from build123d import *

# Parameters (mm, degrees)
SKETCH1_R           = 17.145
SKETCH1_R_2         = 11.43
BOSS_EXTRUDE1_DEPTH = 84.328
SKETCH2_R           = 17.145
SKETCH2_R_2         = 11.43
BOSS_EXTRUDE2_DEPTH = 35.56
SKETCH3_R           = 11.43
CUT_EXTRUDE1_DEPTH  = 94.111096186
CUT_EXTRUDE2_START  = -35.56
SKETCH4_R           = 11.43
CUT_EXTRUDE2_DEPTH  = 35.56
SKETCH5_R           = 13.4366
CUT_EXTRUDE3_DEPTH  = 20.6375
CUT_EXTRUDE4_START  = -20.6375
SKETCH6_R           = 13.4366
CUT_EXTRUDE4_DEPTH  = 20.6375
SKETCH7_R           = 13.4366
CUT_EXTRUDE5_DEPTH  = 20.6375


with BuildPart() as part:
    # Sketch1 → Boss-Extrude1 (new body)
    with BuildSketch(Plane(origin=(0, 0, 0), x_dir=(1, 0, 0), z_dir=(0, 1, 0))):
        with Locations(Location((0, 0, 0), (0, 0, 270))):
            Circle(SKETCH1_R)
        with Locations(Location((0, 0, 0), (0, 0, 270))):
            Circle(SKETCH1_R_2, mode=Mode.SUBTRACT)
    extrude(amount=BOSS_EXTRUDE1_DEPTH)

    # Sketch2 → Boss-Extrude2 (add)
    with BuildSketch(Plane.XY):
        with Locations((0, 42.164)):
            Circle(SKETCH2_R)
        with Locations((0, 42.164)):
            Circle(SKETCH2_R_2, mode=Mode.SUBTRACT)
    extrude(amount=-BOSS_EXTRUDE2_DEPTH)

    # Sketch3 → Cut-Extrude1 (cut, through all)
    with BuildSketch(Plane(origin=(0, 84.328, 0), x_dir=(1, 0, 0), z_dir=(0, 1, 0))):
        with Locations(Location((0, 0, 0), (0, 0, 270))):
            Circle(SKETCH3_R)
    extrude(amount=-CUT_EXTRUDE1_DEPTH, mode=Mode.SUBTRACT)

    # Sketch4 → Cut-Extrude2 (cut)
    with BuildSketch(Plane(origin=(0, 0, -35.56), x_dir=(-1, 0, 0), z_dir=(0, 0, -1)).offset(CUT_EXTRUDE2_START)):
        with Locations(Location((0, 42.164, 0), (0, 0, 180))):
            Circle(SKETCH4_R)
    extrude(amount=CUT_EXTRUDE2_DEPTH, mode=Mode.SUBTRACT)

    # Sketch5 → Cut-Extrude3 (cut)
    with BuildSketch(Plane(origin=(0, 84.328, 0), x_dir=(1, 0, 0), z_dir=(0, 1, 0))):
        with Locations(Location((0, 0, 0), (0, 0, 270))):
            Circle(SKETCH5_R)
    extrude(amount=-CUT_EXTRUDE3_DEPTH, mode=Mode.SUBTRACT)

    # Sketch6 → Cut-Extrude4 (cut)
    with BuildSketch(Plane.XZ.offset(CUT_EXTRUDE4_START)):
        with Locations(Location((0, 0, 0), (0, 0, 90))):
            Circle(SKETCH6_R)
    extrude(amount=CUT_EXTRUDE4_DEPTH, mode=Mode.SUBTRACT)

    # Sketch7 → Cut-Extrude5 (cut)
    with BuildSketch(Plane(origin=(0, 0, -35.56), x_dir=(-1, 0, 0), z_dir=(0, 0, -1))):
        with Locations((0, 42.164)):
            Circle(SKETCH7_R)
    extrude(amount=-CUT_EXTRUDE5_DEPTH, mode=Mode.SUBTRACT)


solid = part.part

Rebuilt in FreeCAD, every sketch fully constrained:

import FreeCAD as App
import Part
import Sketcher
from FreeCAD import Vector
Q = App.Units.Quantity

doc = App.newDocument("Part")
params = doc.addObject("Spreadsheet::Sheet", "Params")
for row, (alias, value) in enumerate([
    ("sketch1_diameter", "0.9 in"),
    ("sketch1_diameter2", "1.35 in"),
    ("pad1_length", "3.32 in"),
    ("sketch2_diameter", "0.9 in"),
    ("sketch2_diameter2", "1.35 in"),
    ("pad2_length", "1.4 in"),
    ("sketch3_diameter", "0.9 in"),
    ("sketch4_diameter", "0.9 in"),
    ("pocket2_length", "1.4 in"),
    ("sketch5_diameter", "1.058 in"),
    ("pocket3_length", "0.8125 in"),
    ("sketch6_diameter", "1.058 in"),
    ("pocket4_length", "0.8125 in"),
    ("sketch7_diameter", "1.058 in"),
    ("pocket5_length", "0.8125 in"),
], start=1):
    params.set(f"A{row}", alias)
    params.set(f"B{row}", "=" + value)
    params.setAlias(f"B{row}", alias)

body = doc.addObject("PartDesign::Body", "Body")

sketch1 = body.newObject("Sketcher::SketchObject", "Sketch")
sketch1.AttachmentSupport = (doc.getObject("XZ_Plane"), [""])
sketch1.MapMode = "FlatFace"
sketch1.addGeometry([
    Part.Circle(Vector(0, 0, 0), Vector(0, 0, 1), 17),
    Part.Circle(Vector(0, 0, 0), Vector(0, 0, 1), 11),
], False)
sketch1.addConstraint([
    Sketcher.Constraint("Coincident", 0, 3, -1, 1),
    Sketcher.Constraint("Coincident", 1, 3, -1, 1),
    Sketcher.Constraint("Diameter", 1, Q("0.9 in")),
    Sketcher.Constraint("Diameter", 0, Q("1.35 in")),
])
sketch1.setExpression("Constraints[2]", "Params.sketch1_diameter")
sketch1.setExpression("Constraints[3]", "Params.sketch1_diameter2")
pad1 = body.newObject("PartDesign::Pad", "Pad")
pad1.Profile = sketch1
pad1.setExpression("Length", "Params.pad1_length")
pad1.Reversed = True

sketch2 = body.newObject("Sketcher::SketchObject", "Sketch001")
sketch2.AttachmentSupport = (doc.getObject("XY_Plane"), [""])
sketch2.MapMode = "FlatFace"
sketch2.addGeometry([
    Part.Circle(Vector(0, 42, 0), Vector(0, 0, 1), 17),
    Part.Circle(Vector(0, 42, 0), Vector(0, 0, 1), 11),
], False)
sketch2.addConstraint([
    Sketcher.Constraint("Coincident", 1, 3, 0, 3),
    Sketcher.Constraint("PointOnObject", 0, 3, -2),
    Sketcher.Constraint("Diameter", 1, Q("0.9 in")),
    Sketcher.Constraint("Diameter", 0, Q("1.35 in")),
    Sketcher.Constraint("DistanceY", -1, 1, 0, 3, Q("1.66 in")),
])
sketch2.setExpression("Constraints[2]", "Params.sketch2_diameter")
sketch2.setExpression("Constraints[3]", "Params.sketch2_diameter2")
pad2 = body.newObject("PartDesign::Pad", "Pad001")
pad2.Profile = sketch2
pad2.setExpression("Length", "Params.pad2_length")
pad2.Reversed = True

sketch3 = body.newObject("Sketcher::SketchObject", "Sketch002")
sketch3.AttachmentSupport = (doc.getObject("XZ_Plane"), [""])
sketch3.MapMode = "FlatFace"
sketch3.AttachmentOffset = App.Placement(Vector(0, 0, -3.32 * 25.4), App.Rotation())
sketch3.addGeometry(Part.Circle(Vector(0, 0, 0), Vector(0, 0, 1), 11), False)
sketch3.addConstraint([
    Sketcher.Constraint("Coincident", 0, 3, -1, 1),
    Sketcher.Constraint("Diameter", 0, Q("0.9 in")),
])
sketch3.setExpression("Constraints[1]", "Params.sketch3_diameter")
pocket1 = body.newObject("PartDesign::Pocket", "Pocket")
pocket1.Profile = sketch3
pocket1.Type = "ThroughAll"
pocket1.Reversed = True

sketch4 = body.newObject("Sketcher::SketchObject", "Sketch003")
sketch4.AttachmentSupport = (doc.getObject("XY_Plane"), [""])
sketch4.MapMode = "FlatFace"
sketch4.addGeometry(Part.Circle(Vector(0, 42, 0), Vector(0, 0, 1), 11), False)
sketch4.addConstraint([
    Sketcher.Constraint("PointOnObject", 0, 3, -2),
    Sketcher.Constraint("Diameter", 0, Q("0.9 in")),
    Sketcher.Constraint("DistanceY", -1, 1, 0, 3, Q("1.66 in")),
])
sketch4.setExpression("Constraints[1]", "Params.sketch4_diameter")
pocket2 = body.newObject("PartDesign::Pocket", "Pocket001")
pocket2.Profile = sketch4
pocket2.setExpression("Length", "Params.pocket2_length")

sketch5 = body.newObject("Sketcher::SketchObject", "Sketch004")
sketch5.AttachmentSupport = (doc.getObject("XZ_Plane"), [""])
sketch5.MapMode = "FlatFace"
sketch5.AttachmentOffset = App.Placement(Vector(0, 0, -3.32 * 25.4), App.Rotation())
sketch5.addGeometry(Part.Circle(Vector(0, 0, 0), Vector(0, 0, 1), 13), False)
sketch5.addConstraint([
    Sketcher.Constraint("Coincident", 0, 3, -1, 1),
    Sketcher.Constraint("Diameter", 0, Q("1.058 in")),
])
sketch5.setExpression("Constraints[1]", "Params.sketch5_diameter")
pocket3 = body.newObject("PartDesign::Pocket", "Pocket002")
pocket3.Profile = sketch5
pocket3.setExpression("Length", "Params.pocket3_length")
pocket3.Reversed = True

sketch6 = body.newObject("Sketcher::SketchObject", "Sketch005")
sketch6.AttachmentSupport = (doc.getObject("XZ_Plane"), [""])
sketch6.MapMode = "FlatFace"
sketch6.AttachmentOffset = App.Placement(Vector(0, 0, -0.8125 * 25.4), App.Rotation())
sketch6.addGeometry(Part.Circle(Vector(0, 0, 0), Vector(0, 0, 1), 13), False)
sketch6.addConstraint([
    Sketcher.Constraint("Coincident", 0, 3, -1, 1),
    Sketcher.Constraint("Diameter", 0, Q("1.058 in")),
])
sketch6.setExpression("Constraints[1]", "Params.sketch6_diameter")
pocket4 = body.newObject("PartDesign::Pocket", "Pocket003")
pocket4.Profile = sketch6
pocket4.setExpression("Length", "Params.pocket4_length")
pocket4.Reversed = True

sketch7 = body.newObject("Sketcher::SketchObject", "Sketch006")
sketch7.AttachmentSupport = (doc.getObject("XY_Plane"), [""])
sketch7.MapMode = "FlatFace"
sketch7.AttachmentOffset = App.Placement(Vector(0, 0, -1.4 * 25.4), App.Rotation())
sketch7.addGeometry(Part.Circle(Vector(0, 42, 0), Vector(0, 0, 1), 13), False)
sketch7.addConstraint([
    Sketcher.Constraint("PointOnObject", 0, 3, -2),
    Sketcher.Constraint("Diameter", 0, Q("1.058 in")),
    Sketcher.Constraint("DistanceY", -1, 1, 0, 3, Q("1.66 in")),
])
sketch7.setExpression("Constraints[1]", "Params.sketch7_diameter")
pocket5 = body.newObject("PartDesign::Pocket", "Pocket004")
pocket5.Profile = sketch7
pocket5.setExpression("Length", "Params.pocket5_length")
pocket5.Reversed = True

doc.recompute()
